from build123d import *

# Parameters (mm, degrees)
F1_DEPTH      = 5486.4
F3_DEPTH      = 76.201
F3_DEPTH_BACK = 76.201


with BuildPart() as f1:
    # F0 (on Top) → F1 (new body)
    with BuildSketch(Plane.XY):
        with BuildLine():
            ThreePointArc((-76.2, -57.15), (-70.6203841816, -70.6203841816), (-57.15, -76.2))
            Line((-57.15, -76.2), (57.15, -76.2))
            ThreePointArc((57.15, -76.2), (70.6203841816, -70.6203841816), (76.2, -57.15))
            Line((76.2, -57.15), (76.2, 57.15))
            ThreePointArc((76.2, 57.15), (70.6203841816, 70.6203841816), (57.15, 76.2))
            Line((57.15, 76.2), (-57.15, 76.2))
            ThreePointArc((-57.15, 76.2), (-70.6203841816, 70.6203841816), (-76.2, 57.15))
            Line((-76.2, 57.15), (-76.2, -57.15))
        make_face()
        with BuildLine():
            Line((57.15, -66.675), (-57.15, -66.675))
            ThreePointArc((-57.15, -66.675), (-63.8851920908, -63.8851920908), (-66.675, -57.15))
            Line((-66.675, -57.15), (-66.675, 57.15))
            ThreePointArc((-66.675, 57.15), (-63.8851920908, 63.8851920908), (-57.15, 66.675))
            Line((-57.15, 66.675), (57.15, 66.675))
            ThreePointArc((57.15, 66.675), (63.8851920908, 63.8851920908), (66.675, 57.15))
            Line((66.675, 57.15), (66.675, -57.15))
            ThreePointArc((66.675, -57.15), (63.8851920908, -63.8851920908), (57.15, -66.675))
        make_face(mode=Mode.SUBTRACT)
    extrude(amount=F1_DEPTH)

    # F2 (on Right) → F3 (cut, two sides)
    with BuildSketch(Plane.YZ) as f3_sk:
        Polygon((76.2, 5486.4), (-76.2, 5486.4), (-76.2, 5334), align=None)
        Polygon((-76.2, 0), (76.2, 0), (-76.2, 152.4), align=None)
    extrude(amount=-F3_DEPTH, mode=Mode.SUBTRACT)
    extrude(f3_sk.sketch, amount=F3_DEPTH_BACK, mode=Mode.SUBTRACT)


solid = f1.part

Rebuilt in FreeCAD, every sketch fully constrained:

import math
import FreeCAD as App
import Part
import Sketcher
Q = App.Units.Quantity


def add_polygon(sketch, points):
    """Adds a closed chain of lines whose ends are joined by coincident constraints."""
    first, n = sketch.GeometryCount, len(points)
    for a, b in zip(points, points[1:] + points[:1]):
        sketch.addGeometry(Part.LineSegment(App.Vector(*a, 0), App.Vector(*b, 0)), False)
    for i in range(n):
        sketch.addConstraint(Sketcher.Constraint("Coincident", first + i, 2, first + (i + 1) % n, 1))

doc = App.newDocument("Part")
body = doc.addObject("PartDesign::Body", "Body")

# Sketch on XY plane
sketch1 = body.newObject("Sketcher::SketchObject", "Sketch")
sketch1.AttachmentSupport = (doc.getObject("XY_Plane"), [""])
sketch1.MapMode = "FlatFace"
sketch1.addGeometry(Part.ArcOfCircle(Part.Circle(App.Vector(-57, -57, 0), App.Vector(0, 0, 1), 19), math.radians(180), math.radians(270)), False)
sketch1.addGeometry(Part.LineSegment(App.Vector(-57, -76, 0), App.Vector(57, -76, 0)), False)
sketch1.addGeometry(Part.ArcOfCircle(Part.Circle(App.Vector(57, -57, 0), App.Vector(0, 0, 1), 19), math.radians(-90), math.radians(0)), False)
sketch1.addGeometry(Part.LineSegment(App.Vector(76, -57, 0), App.Vector(76, 57, 0)), False)
sketch1.addGeometry(Part.ArcOfCircle(Part.Circle(App.Vector(57, 57, 0), App.Vector(0, 0, 1), 19), math.radians(0), math.radians(90)), False)
sketch1.addGeometry(Part.LineSegment(App.Vector(57, 76, 0), App.Vector(-57, 76, 0)), False)
sketch1.addGeometry(Part.ArcOfCircle(Part.Circle(App.Vector(-57, 57, 0), App.Vector(0, 0, 1), 19), math.radians(90), math.radians(180)), False)
sketch1.addGeometry(Part.LineSegment(App.Vector(-76, 57, 0), App.Vector(-76, -57, 0)), False)
sketch1.addGeometry(Part.ArcOfCircle(Part.Circle(App.Vector(57, -57, 0), App.Vector(0, 0, 1), 10), math.radians(-90), math.radians(0)), False)
sketch1.addGeometry(Part.LineSegment(App.Vector(57, -67, 0), App.Vector(-57, -67, 0)), False)
sketch1.addGeometry(Part.ArcOfCircle(Part.Circle(App.Vector(-57, -57, 0), App.Vector(0, 0, 1), 10), math.radians(180), math.radians(270)), False)
sketch1.addGeometry(Part.LineSegment(App.Vector(-67, -57, 0), App.Vector(-67, 57, 0)), False)
sketch1.addGeometry(Part.ArcOfCircle(Part.Circle(App.Vector(-57, 57, 0), App.Vector(0, 0, 1), 10), math.radians(90), math.radians(180)), False)
sketch1.addGeometry(Part.LineSegment(App.Vector(-57, 67, 0), App.Vector(57, 67, 0)), False)
sketch1.addGeometry(Part.ArcOfCircle(Part.Circle(App.Vector(57, 57, 0), App.Vector(0, 0, 1), 10), math.radians(0), math.radians(90)), False)
sketch1.addGeometry(Part.LineSegment(App.Vector(67, 57, 0), App.Vector(67, -57, 0)), False)
sketch1.addConstraint(Sketcher.Constraint("Tangent", 0, 2, 1, 1))
sketch1.addConstraint(Sketcher.Constraint("Tangent", 1, 2, 2, 1))
sketch1.addConstraint(Sketcher.Constraint("Tangent", 2, 2, 3, 1))
sketch1.addConstraint(Sketcher.Constraint("Tangent", 3, 2, 4, 1))
sketch1.addConstraint(Sketcher.Constraint("Tangent", 4, 2, 5, 1))
sketch1.addConstraint(Sketcher.Constraint("Tangent", 5, 2, 6, 1))
sketch1.addConstraint(Sketcher.Constraint("Tangent", 6, 2, 7, 1))
sketch1.addConstraint(Sketcher.Constraint("Tangent", 7, 2, 0, 1))
sketch1.addConstraint(Sketcher.Constraint("Tangent", 8, 1, 9, 1))
sketch1.addConstraint(Sketcher.Constraint("Tangent", 9, 2, 10, 2))
sketch1.addConstraint(Sketcher.Constraint("Tangent", 10, 1, 11, 1))
sketch1.addConstraint(Sketcher.Constraint("Tangent", 11, 2, 12, 2))
sketch1.addConstraint(Sketcher.Constraint("Tangent", 12, 1, 13, 1))
sketch1.addConstraint(Sketcher.Constraint("Tangent", 13, 2, 14, 2))
sketch1.addConstraint(Sketcher.Constraint("Tangent", 14, 1, 15, 1))
sketch1.addConstraint(Sketcher.Constraint("Tangent", 15, 2, 8, 2))
sketch1.addConstraint(Sketcher.Constraint("Horizontal", 1))
sketch1.addConstraint(Sketcher.Constraint("Vertical", 3))
sketch1.addConstraint(Sketcher.Constraint("Horizontal", 5))
sketch1.addConstraint(Sketcher.Constraint("Vertical", 7))
sketch1.addConstraint(Sketcher.Constraint("Horizontal", 9))
sketch1.addConstraint(Sketcher.Constraint("Vertical", 11))
sketch1.addConstraint(Sketcher.Constraint("Horizontal", 13))
sketch1.addConstraint(Sketcher.Constraint("Vertical", 15))
sketch1.addConstraint(Sketcher.Constraint("Coincident", 8, 3, 2, 3))
sketch1.addConstraint(Sketcher.Constraint("Coincident", 10, 3, 0, 3))
sketch1.addConstraint(Sketcher.Constraint("Coincident", 12, 3, 6, 3))
sketch1.addConstraint(Sketcher.Constraint("Equal", 0, 2))
sketch1.addConstraint(Sketcher.Constraint("Equal", 2, 4))
sketch1.addConstraint(Sketcher.Constraint("Equal", 4, 6))
sketch1.addConstraint(Sketcher.Constraint("Equal", 12, 14))
sketch1.addConstraint(Sketcher.Constraint("Symmetric", 0, 3, 4, 3, -1, 1))
sketch1.addConstraint(Sketcher.Constraint("Equal", 13, 3))
sketch1.addConstraint(Sketcher.Constraint("Radius", 0, Q("0.75 in")))
sketch1.addConstraint(Sketcher.Constraint("DistanceX", 1, 1, 1, 2, Q("4.5 in")))
sketch1.addConstraint(Sketcher.Constraint("Radius", 8, Q("0.375 in")))
pad1 = body.newObject("PartDesign::Pad", "Pad")
pad1.Profile = sketch1
pad1.Length = Q("216 in")

# Sketch on YZ plane
sketch2 = body.newObject("Sketcher::SketchObject", "Sketch001")
sketch2.AttachmentSupport = (doc.getObject("YZ_Plane"), [""])
sketch2.MapMode = "FlatFace"
add_polygon(sketch2, [(76, 5486), (-76, 5486), (-76, 5334)])  # lines 0-2
add_polygon(sketch2, [(-76, 0), (76, 0), (-76, 152)])  # lines 3-5
sketch2.addConstraint(Sketcher.Constraint("Horizontal", 0))
sketch2.addConstraint(Sketcher.Constraint("Vertical", 1))
sketch2.addConstraint(Sketcher.Constraint("Horizontal", 3))
sketch2.addConstraint(Sketcher.Constraint("Vertical", 5))
sketch2.addConstraint(Sketcher.Constraint("Symmetric", 3, 2, 5, 2, -1, 1))
sketch2.addConstraint(Sketcher.Constraint("Perpendicular", 2, 4))
sketch2.addConstraint(Sketcher.Constraint("Vertical", 2, 2, 3, 2))
sketch2.addConstraint(Sketcher.Constraint("Vertical", 1, 2, 4, 2))
sketch2.addConstraint(Sketcher.Constraint("Equal", 3, 1))
sketch2.addConstraint(Sketcher.Constraint("DistanceX", 0, 2, 0, 1, Q("6 in")))
sketch2.addConstraint(Sketcher.Constraint("DistanceY", -1, 1, 0, 2, Q("216 in")))
pocket1 = body.newObject("PartDesign::Pocket", "Pocket")
pocket1.Profile = sketch2
pocket1.Type = "ThroughAll"
pocket1.Midplane = True

doc.recompute()
